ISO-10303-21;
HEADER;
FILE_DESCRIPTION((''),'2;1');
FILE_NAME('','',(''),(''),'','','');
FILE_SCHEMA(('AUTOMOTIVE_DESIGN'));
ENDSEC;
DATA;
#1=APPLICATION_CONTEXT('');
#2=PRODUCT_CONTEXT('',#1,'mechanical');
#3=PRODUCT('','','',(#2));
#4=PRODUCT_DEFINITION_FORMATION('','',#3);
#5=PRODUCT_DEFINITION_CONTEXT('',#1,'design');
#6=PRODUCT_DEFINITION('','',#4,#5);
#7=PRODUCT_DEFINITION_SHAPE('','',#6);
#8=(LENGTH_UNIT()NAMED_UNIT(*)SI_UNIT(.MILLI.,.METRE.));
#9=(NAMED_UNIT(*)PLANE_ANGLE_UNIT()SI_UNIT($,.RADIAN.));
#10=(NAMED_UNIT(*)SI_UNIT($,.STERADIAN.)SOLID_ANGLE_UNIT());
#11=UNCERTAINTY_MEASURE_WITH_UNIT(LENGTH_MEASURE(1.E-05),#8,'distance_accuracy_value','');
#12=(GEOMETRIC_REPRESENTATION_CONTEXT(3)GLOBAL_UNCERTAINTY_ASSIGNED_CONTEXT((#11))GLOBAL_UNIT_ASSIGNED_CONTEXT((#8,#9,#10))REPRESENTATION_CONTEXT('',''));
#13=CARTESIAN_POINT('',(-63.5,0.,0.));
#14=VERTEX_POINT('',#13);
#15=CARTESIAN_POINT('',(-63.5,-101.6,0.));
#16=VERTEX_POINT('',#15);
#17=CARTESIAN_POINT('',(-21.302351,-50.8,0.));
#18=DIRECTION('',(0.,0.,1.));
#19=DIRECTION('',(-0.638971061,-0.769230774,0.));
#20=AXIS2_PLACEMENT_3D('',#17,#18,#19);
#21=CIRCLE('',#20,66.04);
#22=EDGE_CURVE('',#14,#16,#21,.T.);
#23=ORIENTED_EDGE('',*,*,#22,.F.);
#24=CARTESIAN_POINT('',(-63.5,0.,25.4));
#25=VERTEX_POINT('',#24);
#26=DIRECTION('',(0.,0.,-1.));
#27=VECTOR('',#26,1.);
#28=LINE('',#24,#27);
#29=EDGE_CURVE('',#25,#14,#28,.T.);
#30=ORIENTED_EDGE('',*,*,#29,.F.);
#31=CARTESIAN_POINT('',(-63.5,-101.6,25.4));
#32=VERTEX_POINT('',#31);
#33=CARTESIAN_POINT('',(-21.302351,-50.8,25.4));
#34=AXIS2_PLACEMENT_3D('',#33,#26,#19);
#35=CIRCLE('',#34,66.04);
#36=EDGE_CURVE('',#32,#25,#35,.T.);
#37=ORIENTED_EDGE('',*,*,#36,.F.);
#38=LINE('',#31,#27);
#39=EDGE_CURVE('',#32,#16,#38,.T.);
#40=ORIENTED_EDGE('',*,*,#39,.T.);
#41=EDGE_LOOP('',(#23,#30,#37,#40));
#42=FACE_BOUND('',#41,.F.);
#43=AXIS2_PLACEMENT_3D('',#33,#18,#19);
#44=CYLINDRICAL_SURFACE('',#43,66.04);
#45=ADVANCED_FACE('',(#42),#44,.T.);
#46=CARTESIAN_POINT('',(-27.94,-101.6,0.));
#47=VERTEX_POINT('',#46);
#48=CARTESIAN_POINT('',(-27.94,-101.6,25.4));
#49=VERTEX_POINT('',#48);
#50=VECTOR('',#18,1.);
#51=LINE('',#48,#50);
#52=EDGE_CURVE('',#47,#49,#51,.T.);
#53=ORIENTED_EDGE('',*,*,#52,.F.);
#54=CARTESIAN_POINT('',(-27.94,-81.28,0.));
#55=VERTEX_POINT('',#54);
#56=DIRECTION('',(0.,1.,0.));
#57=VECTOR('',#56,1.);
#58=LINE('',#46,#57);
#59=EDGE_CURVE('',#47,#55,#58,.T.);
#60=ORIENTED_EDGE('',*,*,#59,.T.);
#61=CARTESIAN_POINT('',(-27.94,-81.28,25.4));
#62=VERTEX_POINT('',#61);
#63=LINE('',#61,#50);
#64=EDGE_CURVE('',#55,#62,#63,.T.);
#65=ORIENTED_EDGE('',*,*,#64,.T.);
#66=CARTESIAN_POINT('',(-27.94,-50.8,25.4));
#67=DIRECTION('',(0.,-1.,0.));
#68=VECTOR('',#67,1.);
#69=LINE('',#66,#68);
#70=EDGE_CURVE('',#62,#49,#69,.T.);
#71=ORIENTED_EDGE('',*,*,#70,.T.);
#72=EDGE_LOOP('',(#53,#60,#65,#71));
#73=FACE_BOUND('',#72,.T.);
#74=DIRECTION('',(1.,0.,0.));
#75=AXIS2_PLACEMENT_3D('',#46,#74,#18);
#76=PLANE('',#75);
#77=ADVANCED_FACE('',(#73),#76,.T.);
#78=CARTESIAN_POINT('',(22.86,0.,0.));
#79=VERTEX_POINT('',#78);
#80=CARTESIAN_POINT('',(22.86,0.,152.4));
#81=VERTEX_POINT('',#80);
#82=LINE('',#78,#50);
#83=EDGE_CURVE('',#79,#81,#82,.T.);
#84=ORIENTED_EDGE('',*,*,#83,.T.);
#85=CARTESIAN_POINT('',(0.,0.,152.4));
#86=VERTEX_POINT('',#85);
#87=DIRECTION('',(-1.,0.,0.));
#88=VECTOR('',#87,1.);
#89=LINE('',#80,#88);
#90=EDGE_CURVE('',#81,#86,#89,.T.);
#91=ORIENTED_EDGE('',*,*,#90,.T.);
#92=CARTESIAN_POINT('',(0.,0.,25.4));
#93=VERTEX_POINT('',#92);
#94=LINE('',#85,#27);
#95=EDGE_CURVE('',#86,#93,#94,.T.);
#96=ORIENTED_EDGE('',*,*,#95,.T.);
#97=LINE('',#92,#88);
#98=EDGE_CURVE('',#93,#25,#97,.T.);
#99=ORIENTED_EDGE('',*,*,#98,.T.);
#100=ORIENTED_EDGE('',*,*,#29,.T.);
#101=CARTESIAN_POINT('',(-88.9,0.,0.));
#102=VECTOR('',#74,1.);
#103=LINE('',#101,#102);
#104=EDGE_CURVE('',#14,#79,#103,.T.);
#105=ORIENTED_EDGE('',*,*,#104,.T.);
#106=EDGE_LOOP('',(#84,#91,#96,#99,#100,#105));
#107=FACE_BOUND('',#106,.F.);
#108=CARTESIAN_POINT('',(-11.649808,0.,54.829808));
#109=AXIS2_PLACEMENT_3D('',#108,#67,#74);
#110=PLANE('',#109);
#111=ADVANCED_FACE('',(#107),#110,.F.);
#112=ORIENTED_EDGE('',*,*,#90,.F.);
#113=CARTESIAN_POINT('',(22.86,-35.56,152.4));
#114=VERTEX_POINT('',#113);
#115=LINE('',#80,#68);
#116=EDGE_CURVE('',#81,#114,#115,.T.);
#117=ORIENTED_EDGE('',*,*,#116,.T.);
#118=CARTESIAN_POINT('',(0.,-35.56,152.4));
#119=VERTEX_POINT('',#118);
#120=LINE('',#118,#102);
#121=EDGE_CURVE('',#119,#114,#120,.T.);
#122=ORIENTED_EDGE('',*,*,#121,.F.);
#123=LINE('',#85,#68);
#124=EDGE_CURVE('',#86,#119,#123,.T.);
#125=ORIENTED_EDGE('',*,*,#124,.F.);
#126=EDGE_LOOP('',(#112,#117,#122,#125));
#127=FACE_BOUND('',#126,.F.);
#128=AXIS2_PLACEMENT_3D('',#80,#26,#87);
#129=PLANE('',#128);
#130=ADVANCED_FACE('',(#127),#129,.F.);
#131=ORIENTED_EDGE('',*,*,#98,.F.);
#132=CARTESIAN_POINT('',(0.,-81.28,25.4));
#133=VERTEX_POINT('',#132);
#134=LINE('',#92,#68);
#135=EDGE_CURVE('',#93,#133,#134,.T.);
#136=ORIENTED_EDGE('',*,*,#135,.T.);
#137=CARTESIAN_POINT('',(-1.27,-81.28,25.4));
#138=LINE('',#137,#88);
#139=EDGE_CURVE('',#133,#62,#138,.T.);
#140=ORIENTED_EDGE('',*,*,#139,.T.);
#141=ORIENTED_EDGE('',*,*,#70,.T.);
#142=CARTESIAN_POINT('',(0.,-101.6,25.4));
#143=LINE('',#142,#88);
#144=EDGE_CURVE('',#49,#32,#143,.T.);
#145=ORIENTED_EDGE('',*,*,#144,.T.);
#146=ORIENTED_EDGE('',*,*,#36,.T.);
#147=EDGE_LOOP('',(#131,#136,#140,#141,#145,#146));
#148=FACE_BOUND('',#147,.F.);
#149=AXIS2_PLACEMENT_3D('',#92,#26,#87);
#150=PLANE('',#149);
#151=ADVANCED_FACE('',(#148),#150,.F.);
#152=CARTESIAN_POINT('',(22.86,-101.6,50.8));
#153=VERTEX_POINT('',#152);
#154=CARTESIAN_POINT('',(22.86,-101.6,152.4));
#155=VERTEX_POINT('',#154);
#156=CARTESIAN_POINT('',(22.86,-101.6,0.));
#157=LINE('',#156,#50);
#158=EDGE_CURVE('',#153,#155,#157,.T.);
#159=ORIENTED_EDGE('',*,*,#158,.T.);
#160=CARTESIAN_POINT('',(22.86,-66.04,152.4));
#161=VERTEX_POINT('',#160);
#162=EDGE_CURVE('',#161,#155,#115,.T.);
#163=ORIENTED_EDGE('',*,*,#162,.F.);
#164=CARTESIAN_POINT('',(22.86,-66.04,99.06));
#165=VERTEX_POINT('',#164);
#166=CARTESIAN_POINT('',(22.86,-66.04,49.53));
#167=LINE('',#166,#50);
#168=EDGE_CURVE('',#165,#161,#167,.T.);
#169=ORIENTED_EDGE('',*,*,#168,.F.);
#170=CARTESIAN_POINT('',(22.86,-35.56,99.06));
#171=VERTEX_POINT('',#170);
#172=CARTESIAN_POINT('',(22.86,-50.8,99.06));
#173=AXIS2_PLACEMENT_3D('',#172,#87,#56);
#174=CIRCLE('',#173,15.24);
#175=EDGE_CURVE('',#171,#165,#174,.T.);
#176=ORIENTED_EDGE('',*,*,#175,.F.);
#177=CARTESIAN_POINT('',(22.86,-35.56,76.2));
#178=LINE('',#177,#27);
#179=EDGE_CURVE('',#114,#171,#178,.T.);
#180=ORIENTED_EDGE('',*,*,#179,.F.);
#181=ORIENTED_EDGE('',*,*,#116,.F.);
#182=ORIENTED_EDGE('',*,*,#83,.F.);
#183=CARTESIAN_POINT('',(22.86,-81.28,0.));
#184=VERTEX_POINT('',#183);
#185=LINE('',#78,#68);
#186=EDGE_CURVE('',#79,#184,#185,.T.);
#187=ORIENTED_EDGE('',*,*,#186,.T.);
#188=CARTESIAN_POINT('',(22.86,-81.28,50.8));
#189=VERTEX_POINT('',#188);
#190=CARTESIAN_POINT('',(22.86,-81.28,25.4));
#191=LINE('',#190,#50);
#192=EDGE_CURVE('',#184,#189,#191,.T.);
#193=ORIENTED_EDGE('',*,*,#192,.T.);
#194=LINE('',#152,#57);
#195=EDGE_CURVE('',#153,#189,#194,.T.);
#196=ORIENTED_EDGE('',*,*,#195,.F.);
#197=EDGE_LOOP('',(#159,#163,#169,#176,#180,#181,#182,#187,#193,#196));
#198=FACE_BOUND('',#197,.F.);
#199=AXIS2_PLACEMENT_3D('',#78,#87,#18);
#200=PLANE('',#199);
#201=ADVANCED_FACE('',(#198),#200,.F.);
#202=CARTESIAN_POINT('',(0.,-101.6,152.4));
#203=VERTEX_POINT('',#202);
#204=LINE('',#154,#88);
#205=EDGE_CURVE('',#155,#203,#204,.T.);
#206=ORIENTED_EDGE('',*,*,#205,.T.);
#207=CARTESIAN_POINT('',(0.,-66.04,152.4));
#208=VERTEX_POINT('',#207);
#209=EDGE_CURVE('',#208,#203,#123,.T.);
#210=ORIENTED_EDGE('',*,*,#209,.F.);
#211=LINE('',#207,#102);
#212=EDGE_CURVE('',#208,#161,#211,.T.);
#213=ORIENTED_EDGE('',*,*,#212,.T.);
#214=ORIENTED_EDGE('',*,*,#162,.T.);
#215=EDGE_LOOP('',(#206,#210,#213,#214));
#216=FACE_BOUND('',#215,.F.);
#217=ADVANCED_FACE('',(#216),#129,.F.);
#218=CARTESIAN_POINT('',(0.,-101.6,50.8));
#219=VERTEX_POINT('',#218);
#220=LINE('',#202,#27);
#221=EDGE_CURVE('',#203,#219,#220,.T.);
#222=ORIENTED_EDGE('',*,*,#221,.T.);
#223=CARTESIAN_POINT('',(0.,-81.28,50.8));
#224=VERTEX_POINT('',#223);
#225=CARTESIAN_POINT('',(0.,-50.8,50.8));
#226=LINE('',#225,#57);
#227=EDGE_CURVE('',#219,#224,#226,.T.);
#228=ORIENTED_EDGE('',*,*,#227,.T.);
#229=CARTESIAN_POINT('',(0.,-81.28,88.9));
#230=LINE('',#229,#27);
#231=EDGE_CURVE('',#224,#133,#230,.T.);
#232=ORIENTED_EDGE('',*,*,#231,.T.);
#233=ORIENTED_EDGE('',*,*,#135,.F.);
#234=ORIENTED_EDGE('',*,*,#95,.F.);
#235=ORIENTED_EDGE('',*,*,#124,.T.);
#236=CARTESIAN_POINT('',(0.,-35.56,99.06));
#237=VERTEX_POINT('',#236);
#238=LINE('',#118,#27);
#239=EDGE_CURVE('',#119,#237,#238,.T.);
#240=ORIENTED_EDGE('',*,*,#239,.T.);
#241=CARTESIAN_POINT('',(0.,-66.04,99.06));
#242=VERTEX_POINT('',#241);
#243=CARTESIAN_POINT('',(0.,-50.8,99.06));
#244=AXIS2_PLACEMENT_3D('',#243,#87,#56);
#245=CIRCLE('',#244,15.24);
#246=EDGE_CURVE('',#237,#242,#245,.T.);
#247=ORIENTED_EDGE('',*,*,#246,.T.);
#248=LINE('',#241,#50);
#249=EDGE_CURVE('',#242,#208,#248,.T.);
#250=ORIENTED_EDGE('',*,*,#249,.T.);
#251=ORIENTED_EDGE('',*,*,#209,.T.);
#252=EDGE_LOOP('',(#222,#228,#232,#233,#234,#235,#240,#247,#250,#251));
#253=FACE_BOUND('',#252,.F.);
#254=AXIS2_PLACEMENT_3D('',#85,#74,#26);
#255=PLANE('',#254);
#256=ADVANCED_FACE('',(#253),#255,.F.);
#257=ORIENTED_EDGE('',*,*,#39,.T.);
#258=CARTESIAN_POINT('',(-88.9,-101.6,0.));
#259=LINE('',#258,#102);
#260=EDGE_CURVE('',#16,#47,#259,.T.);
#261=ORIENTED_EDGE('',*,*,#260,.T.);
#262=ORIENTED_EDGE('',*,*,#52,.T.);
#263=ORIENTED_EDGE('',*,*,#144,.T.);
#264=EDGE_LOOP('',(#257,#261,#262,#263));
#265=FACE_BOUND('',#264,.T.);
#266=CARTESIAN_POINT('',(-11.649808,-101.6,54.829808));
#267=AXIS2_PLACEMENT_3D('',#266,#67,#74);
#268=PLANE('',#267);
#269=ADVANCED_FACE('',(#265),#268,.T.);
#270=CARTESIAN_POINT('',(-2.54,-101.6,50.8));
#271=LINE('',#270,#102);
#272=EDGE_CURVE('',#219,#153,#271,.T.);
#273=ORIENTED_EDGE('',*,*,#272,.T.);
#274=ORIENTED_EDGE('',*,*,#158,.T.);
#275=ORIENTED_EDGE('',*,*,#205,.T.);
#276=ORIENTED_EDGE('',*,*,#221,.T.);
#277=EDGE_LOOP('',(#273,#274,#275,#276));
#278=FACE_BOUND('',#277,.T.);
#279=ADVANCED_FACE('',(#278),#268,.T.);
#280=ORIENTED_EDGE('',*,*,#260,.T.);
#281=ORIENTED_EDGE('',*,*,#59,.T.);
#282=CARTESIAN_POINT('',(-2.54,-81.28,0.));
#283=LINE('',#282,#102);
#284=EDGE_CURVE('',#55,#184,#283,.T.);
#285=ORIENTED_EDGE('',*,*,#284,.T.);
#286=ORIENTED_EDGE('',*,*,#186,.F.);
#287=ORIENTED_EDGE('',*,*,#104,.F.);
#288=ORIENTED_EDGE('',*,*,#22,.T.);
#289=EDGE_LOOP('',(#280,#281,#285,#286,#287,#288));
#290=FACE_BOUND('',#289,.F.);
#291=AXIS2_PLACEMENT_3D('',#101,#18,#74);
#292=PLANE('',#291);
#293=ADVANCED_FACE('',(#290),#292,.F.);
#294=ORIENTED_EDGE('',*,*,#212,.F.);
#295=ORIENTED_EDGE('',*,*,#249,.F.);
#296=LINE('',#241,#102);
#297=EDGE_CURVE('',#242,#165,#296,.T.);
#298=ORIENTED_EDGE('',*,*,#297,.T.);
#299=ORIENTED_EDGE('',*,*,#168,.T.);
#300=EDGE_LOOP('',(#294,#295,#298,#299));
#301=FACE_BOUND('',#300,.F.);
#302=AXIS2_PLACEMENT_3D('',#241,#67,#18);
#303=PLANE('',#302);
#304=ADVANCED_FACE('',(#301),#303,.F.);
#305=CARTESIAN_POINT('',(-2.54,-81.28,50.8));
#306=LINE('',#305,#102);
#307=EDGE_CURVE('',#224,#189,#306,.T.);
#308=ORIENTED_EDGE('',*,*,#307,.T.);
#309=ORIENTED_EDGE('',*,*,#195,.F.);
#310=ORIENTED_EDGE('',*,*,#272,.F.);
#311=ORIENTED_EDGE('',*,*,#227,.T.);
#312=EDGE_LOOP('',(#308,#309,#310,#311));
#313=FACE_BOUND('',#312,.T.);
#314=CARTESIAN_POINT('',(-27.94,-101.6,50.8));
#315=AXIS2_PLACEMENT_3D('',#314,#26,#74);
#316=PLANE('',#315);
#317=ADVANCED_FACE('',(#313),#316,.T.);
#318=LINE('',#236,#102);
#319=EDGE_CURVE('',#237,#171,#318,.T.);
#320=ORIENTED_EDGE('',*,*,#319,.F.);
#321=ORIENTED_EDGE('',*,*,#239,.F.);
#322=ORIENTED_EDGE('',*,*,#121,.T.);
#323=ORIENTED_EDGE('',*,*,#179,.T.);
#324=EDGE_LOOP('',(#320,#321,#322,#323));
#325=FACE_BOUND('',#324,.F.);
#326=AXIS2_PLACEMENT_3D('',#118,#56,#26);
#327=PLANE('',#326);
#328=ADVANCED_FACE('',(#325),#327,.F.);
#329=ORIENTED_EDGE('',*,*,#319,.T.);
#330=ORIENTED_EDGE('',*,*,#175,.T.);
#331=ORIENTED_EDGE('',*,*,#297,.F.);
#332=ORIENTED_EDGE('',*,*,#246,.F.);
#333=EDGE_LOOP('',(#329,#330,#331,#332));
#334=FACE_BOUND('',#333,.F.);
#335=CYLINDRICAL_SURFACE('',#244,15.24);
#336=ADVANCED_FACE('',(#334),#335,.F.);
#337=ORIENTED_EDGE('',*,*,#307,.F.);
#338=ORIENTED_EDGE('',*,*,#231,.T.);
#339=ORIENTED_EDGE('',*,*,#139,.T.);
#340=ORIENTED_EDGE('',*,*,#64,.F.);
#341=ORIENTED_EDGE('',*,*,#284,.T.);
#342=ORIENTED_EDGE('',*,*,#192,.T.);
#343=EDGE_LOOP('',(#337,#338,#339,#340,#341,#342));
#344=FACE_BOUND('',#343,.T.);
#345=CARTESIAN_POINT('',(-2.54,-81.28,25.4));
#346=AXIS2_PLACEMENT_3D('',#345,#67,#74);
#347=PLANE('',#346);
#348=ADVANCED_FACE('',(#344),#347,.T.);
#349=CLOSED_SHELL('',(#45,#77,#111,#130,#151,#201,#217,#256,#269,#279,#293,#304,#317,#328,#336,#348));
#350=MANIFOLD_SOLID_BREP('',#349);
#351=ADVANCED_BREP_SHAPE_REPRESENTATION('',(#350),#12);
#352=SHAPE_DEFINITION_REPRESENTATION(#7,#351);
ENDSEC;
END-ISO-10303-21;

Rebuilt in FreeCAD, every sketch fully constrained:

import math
import FreeCAD as App
import Part
import Sketcher
Q = App.Units.Quantity


def add_polygon(sketch, points):
    """Adds a closed chain of lines whose ends are joined by coincident constraints."""
    first, n = sketch.GeometryCount, len(points)
    for a, b in zip(points, points[1:] + points[:1]):
        sketch.addGeometry(Part.LineSegment(App.Vector(*a, 0), App.Vector(*b, 0)), False)
    for i in range(n):
        sketch.addConstraint(Sketcher.Constraint("Coincident", first + i, 2, first + (i + 1) % n, 1))

doc = App.newDocument("Part")
body = doc.addObject("PartDesign::Body", "Body")

sketch1 = body.newObject("Sketcher::SketchObject", "Sketch")
sketch1.AttachmentSupport = (doc.getObject("XZ_Plane"), [""])
sketch1.MapMode = "FlatFace"
add_polygon(sketch1, [(23, 152), (0, 152), (0, 25), (-89, 25), (-89, 0), (23, 0)])
sketch1.addConstraint([
    Sketcher.Constraint("Horizontal", 0),
    Sketcher.Constraint("Vertical", 1),
    Sketcher.Constraint("Horizontal", 2),
    Sketcher.Constraint("Vertical", 3),
    Sketcher.Constraint("Horizontal", 4),
    Sketcher.Constraint("Vertical", 5),
    Sketcher.Constraint("PointOnObject", 0, 2, -2),
    Sketcher.Constraint("PointOnObject", 3, 2, -1),
    Sketcher.Constraint("DistanceY", 1, 2, 1, 1, Q("5 in")),
    Sketcher.Constraint("DistanceY", 3, 2, 3, 1, Q("1 in")),
    Sketcher.Constraint("DistanceX", 0, 2, 0, 1, Q("0.9 in")),
    Sketcher.Constraint("DistanceX", 2, 2, 2, 1, Q("3.5 in")),
])
pad1 = body.newObject("PartDesign::Pad", "Pad")
pad1.Profile = sketch1
pad1.Length = Q("4 in")

sketch2 = body.newObject("Sketcher::SketchObject", "Sketch001")
sketch2.AttachmentSupport = (doc.getObject("XY_Plane"), [""])
sketch2.MapMode = "FlatFace"
sketch2.AttachmentOffset = App.Placement(App.Vector(0, 0, 1 * 25.4), App.Rotation())
sketch2.addGeometry([
    Part.LineSegment(App.Vector(-89, -102, 0), App.Vector(-64, -102, 0)),
    Part.ArcOfCircle(Part.Circle(App.Vector(-21, -51, 0), App.Vector(0, 0, 1), 66), math.radians(130), math.radians(230)),
    Part.LineSegment(App.Vector(-64, 0, 0), App.Vector(-89, 0, 0)),
    Part.LineSegment(App.Vector(-89, 0, 0), App.Vector(-89, -102, 0)),
], False)
sketch2.addConstraint([
    Sketcher.Constraint("Coincident", 0, 2, 1, 2),
    Sketcher.Constraint("Coincident", 1, 1, 2, 1),
    Sketcher.Constraint("Coincident", 2, 2, 3, 1),
    Sketcher.Constraint("Coincident", 3, 2, 0, 1),
    Sketcher.Constraint("Horizontal", 0),
    Sketcher.Constraint("Horizontal", 2),
    Sketcher.Constraint("Vertical", 3),
    Sketcher.Constraint("PointOnObject", 1, 1, -1),
    Sketcher.Constraint("Vertical", 0, 2, 1, 1),
    Sketcher.Constraint("Radius", 1, Q("2.6 in")),
    Sketcher.Constraint("DistanceX", 0, 1, 0, 2, Q("1 in")),
    Sketcher.Constraint("DistanceY", 3, 2, 3, 1, Q("4 in")),
    Sketcher.Constraint("DistanceX", 0, 2, -1, 1, Q("2.5 in")),
])
pocket1 = body.newObject("PartDesign::Pocket", "Pocket")
pocket1.Profile = sketch2
pocket1.Type = "ThroughAll"

sketch3 = body.newObject("Sketcher::SketchObject", "Sketch002")
sketch3.AttachmentSupport = (doc.getObject("XZ_Plane"), [""])
sketch3.MapMode = "FlatFace"
sketch3.AttachmentOffset = App.Placement(App.Vector(0, 0, 4 * 25.4), App.Rotation())
add_polygon(sketch3, [(-28, 51), (-28, 0), (23, 0), (23, 51)])
sketch3.addConstraint([
    Sketcher.Constraint("Vertical", 0),
    Sketcher.Constraint("Horizontal", 1),
    Sketcher.Constraint("Vertical", 2),
    Sketcher.Constraint("Horizontal", 3),
    Sketcher.Constraint("PointOnObject", 0, 2, -1),
    Sketcher.Constraint("Equal", 3, 0),
    Sketcher.Constraint("DistanceX", 1, 1, 1, 2, Q("2 in")),
    Sketcher.Constraint("DistanceX", 0, 2, -1, 1, Q("1.1 in")),
])
pocket2 = body.newObject("PartDesign::Pocket", "Pocket001")
pocket2.Profile = sketch3
pocket2.Length = Q("0.8 in")

sketch4 = body.newObject("Sketcher::SketchObject", "Sketch003")
sketch4.AttachmentSupport = (doc.getObject("YZ_Plane"), [""])
sketch4.MapMode = "FlatFace"
sketch4.addGeometry([
    Part.LineSegment(App.Vector(-66, 152, 0), App.Vector(-36, 152, 0)),
    Part.LineSegment(App.Vector(-36, 152, 0), App.Vector(-36, 99, 0)),
    Part.ArcOfCircle(Part.Circle(App.Vector(-51, 99, 0), App.Vector(0, 0, 1), 15), math.radians(180), math.radians(360)),
    Part.LineSegment(App.Vector(-66, 99, 0), App.Vector(-66, 152, 0)),
], False)
sketch4.addConstraint([
    Sketcher.Constraint("Coincident", 0, 2, 1, 1),
    Sketcher.Constraint("Tangent", 1, 2, 2, 2),
    Sketcher.Constraint("Tangent", 2, 1, 3, 1),
    Sketcher.Constraint("Coincident", 3, 2, 0, 1),
    Sketcher.Constraint("Horizontal", 0),
    Sketcher.Constraint("Vertical", 1),
    Sketcher.Constraint("Vertical", 3),
    Sketcher.Constraint("Radius", 2, Q("0.6 in")),
    Sketcher.Constraint("DistanceY", 1, 2, 1, 1, Q("2.1 in")),
    Sketcher.Constraint("DistanceX", 2, 3, -1, 1, Q("2 in")),
    Sketcher.Constraint("DistanceY", -1, 1, 0, 2, Q("6 in")),
])
pocket3 = body.newObject("PartDesign::Pocket", "Pocket002")
pocket3.Profile = sketch4
pocket3.Type = "ThroughAll"
pocket3.Reversed = True

doc.recompute()
